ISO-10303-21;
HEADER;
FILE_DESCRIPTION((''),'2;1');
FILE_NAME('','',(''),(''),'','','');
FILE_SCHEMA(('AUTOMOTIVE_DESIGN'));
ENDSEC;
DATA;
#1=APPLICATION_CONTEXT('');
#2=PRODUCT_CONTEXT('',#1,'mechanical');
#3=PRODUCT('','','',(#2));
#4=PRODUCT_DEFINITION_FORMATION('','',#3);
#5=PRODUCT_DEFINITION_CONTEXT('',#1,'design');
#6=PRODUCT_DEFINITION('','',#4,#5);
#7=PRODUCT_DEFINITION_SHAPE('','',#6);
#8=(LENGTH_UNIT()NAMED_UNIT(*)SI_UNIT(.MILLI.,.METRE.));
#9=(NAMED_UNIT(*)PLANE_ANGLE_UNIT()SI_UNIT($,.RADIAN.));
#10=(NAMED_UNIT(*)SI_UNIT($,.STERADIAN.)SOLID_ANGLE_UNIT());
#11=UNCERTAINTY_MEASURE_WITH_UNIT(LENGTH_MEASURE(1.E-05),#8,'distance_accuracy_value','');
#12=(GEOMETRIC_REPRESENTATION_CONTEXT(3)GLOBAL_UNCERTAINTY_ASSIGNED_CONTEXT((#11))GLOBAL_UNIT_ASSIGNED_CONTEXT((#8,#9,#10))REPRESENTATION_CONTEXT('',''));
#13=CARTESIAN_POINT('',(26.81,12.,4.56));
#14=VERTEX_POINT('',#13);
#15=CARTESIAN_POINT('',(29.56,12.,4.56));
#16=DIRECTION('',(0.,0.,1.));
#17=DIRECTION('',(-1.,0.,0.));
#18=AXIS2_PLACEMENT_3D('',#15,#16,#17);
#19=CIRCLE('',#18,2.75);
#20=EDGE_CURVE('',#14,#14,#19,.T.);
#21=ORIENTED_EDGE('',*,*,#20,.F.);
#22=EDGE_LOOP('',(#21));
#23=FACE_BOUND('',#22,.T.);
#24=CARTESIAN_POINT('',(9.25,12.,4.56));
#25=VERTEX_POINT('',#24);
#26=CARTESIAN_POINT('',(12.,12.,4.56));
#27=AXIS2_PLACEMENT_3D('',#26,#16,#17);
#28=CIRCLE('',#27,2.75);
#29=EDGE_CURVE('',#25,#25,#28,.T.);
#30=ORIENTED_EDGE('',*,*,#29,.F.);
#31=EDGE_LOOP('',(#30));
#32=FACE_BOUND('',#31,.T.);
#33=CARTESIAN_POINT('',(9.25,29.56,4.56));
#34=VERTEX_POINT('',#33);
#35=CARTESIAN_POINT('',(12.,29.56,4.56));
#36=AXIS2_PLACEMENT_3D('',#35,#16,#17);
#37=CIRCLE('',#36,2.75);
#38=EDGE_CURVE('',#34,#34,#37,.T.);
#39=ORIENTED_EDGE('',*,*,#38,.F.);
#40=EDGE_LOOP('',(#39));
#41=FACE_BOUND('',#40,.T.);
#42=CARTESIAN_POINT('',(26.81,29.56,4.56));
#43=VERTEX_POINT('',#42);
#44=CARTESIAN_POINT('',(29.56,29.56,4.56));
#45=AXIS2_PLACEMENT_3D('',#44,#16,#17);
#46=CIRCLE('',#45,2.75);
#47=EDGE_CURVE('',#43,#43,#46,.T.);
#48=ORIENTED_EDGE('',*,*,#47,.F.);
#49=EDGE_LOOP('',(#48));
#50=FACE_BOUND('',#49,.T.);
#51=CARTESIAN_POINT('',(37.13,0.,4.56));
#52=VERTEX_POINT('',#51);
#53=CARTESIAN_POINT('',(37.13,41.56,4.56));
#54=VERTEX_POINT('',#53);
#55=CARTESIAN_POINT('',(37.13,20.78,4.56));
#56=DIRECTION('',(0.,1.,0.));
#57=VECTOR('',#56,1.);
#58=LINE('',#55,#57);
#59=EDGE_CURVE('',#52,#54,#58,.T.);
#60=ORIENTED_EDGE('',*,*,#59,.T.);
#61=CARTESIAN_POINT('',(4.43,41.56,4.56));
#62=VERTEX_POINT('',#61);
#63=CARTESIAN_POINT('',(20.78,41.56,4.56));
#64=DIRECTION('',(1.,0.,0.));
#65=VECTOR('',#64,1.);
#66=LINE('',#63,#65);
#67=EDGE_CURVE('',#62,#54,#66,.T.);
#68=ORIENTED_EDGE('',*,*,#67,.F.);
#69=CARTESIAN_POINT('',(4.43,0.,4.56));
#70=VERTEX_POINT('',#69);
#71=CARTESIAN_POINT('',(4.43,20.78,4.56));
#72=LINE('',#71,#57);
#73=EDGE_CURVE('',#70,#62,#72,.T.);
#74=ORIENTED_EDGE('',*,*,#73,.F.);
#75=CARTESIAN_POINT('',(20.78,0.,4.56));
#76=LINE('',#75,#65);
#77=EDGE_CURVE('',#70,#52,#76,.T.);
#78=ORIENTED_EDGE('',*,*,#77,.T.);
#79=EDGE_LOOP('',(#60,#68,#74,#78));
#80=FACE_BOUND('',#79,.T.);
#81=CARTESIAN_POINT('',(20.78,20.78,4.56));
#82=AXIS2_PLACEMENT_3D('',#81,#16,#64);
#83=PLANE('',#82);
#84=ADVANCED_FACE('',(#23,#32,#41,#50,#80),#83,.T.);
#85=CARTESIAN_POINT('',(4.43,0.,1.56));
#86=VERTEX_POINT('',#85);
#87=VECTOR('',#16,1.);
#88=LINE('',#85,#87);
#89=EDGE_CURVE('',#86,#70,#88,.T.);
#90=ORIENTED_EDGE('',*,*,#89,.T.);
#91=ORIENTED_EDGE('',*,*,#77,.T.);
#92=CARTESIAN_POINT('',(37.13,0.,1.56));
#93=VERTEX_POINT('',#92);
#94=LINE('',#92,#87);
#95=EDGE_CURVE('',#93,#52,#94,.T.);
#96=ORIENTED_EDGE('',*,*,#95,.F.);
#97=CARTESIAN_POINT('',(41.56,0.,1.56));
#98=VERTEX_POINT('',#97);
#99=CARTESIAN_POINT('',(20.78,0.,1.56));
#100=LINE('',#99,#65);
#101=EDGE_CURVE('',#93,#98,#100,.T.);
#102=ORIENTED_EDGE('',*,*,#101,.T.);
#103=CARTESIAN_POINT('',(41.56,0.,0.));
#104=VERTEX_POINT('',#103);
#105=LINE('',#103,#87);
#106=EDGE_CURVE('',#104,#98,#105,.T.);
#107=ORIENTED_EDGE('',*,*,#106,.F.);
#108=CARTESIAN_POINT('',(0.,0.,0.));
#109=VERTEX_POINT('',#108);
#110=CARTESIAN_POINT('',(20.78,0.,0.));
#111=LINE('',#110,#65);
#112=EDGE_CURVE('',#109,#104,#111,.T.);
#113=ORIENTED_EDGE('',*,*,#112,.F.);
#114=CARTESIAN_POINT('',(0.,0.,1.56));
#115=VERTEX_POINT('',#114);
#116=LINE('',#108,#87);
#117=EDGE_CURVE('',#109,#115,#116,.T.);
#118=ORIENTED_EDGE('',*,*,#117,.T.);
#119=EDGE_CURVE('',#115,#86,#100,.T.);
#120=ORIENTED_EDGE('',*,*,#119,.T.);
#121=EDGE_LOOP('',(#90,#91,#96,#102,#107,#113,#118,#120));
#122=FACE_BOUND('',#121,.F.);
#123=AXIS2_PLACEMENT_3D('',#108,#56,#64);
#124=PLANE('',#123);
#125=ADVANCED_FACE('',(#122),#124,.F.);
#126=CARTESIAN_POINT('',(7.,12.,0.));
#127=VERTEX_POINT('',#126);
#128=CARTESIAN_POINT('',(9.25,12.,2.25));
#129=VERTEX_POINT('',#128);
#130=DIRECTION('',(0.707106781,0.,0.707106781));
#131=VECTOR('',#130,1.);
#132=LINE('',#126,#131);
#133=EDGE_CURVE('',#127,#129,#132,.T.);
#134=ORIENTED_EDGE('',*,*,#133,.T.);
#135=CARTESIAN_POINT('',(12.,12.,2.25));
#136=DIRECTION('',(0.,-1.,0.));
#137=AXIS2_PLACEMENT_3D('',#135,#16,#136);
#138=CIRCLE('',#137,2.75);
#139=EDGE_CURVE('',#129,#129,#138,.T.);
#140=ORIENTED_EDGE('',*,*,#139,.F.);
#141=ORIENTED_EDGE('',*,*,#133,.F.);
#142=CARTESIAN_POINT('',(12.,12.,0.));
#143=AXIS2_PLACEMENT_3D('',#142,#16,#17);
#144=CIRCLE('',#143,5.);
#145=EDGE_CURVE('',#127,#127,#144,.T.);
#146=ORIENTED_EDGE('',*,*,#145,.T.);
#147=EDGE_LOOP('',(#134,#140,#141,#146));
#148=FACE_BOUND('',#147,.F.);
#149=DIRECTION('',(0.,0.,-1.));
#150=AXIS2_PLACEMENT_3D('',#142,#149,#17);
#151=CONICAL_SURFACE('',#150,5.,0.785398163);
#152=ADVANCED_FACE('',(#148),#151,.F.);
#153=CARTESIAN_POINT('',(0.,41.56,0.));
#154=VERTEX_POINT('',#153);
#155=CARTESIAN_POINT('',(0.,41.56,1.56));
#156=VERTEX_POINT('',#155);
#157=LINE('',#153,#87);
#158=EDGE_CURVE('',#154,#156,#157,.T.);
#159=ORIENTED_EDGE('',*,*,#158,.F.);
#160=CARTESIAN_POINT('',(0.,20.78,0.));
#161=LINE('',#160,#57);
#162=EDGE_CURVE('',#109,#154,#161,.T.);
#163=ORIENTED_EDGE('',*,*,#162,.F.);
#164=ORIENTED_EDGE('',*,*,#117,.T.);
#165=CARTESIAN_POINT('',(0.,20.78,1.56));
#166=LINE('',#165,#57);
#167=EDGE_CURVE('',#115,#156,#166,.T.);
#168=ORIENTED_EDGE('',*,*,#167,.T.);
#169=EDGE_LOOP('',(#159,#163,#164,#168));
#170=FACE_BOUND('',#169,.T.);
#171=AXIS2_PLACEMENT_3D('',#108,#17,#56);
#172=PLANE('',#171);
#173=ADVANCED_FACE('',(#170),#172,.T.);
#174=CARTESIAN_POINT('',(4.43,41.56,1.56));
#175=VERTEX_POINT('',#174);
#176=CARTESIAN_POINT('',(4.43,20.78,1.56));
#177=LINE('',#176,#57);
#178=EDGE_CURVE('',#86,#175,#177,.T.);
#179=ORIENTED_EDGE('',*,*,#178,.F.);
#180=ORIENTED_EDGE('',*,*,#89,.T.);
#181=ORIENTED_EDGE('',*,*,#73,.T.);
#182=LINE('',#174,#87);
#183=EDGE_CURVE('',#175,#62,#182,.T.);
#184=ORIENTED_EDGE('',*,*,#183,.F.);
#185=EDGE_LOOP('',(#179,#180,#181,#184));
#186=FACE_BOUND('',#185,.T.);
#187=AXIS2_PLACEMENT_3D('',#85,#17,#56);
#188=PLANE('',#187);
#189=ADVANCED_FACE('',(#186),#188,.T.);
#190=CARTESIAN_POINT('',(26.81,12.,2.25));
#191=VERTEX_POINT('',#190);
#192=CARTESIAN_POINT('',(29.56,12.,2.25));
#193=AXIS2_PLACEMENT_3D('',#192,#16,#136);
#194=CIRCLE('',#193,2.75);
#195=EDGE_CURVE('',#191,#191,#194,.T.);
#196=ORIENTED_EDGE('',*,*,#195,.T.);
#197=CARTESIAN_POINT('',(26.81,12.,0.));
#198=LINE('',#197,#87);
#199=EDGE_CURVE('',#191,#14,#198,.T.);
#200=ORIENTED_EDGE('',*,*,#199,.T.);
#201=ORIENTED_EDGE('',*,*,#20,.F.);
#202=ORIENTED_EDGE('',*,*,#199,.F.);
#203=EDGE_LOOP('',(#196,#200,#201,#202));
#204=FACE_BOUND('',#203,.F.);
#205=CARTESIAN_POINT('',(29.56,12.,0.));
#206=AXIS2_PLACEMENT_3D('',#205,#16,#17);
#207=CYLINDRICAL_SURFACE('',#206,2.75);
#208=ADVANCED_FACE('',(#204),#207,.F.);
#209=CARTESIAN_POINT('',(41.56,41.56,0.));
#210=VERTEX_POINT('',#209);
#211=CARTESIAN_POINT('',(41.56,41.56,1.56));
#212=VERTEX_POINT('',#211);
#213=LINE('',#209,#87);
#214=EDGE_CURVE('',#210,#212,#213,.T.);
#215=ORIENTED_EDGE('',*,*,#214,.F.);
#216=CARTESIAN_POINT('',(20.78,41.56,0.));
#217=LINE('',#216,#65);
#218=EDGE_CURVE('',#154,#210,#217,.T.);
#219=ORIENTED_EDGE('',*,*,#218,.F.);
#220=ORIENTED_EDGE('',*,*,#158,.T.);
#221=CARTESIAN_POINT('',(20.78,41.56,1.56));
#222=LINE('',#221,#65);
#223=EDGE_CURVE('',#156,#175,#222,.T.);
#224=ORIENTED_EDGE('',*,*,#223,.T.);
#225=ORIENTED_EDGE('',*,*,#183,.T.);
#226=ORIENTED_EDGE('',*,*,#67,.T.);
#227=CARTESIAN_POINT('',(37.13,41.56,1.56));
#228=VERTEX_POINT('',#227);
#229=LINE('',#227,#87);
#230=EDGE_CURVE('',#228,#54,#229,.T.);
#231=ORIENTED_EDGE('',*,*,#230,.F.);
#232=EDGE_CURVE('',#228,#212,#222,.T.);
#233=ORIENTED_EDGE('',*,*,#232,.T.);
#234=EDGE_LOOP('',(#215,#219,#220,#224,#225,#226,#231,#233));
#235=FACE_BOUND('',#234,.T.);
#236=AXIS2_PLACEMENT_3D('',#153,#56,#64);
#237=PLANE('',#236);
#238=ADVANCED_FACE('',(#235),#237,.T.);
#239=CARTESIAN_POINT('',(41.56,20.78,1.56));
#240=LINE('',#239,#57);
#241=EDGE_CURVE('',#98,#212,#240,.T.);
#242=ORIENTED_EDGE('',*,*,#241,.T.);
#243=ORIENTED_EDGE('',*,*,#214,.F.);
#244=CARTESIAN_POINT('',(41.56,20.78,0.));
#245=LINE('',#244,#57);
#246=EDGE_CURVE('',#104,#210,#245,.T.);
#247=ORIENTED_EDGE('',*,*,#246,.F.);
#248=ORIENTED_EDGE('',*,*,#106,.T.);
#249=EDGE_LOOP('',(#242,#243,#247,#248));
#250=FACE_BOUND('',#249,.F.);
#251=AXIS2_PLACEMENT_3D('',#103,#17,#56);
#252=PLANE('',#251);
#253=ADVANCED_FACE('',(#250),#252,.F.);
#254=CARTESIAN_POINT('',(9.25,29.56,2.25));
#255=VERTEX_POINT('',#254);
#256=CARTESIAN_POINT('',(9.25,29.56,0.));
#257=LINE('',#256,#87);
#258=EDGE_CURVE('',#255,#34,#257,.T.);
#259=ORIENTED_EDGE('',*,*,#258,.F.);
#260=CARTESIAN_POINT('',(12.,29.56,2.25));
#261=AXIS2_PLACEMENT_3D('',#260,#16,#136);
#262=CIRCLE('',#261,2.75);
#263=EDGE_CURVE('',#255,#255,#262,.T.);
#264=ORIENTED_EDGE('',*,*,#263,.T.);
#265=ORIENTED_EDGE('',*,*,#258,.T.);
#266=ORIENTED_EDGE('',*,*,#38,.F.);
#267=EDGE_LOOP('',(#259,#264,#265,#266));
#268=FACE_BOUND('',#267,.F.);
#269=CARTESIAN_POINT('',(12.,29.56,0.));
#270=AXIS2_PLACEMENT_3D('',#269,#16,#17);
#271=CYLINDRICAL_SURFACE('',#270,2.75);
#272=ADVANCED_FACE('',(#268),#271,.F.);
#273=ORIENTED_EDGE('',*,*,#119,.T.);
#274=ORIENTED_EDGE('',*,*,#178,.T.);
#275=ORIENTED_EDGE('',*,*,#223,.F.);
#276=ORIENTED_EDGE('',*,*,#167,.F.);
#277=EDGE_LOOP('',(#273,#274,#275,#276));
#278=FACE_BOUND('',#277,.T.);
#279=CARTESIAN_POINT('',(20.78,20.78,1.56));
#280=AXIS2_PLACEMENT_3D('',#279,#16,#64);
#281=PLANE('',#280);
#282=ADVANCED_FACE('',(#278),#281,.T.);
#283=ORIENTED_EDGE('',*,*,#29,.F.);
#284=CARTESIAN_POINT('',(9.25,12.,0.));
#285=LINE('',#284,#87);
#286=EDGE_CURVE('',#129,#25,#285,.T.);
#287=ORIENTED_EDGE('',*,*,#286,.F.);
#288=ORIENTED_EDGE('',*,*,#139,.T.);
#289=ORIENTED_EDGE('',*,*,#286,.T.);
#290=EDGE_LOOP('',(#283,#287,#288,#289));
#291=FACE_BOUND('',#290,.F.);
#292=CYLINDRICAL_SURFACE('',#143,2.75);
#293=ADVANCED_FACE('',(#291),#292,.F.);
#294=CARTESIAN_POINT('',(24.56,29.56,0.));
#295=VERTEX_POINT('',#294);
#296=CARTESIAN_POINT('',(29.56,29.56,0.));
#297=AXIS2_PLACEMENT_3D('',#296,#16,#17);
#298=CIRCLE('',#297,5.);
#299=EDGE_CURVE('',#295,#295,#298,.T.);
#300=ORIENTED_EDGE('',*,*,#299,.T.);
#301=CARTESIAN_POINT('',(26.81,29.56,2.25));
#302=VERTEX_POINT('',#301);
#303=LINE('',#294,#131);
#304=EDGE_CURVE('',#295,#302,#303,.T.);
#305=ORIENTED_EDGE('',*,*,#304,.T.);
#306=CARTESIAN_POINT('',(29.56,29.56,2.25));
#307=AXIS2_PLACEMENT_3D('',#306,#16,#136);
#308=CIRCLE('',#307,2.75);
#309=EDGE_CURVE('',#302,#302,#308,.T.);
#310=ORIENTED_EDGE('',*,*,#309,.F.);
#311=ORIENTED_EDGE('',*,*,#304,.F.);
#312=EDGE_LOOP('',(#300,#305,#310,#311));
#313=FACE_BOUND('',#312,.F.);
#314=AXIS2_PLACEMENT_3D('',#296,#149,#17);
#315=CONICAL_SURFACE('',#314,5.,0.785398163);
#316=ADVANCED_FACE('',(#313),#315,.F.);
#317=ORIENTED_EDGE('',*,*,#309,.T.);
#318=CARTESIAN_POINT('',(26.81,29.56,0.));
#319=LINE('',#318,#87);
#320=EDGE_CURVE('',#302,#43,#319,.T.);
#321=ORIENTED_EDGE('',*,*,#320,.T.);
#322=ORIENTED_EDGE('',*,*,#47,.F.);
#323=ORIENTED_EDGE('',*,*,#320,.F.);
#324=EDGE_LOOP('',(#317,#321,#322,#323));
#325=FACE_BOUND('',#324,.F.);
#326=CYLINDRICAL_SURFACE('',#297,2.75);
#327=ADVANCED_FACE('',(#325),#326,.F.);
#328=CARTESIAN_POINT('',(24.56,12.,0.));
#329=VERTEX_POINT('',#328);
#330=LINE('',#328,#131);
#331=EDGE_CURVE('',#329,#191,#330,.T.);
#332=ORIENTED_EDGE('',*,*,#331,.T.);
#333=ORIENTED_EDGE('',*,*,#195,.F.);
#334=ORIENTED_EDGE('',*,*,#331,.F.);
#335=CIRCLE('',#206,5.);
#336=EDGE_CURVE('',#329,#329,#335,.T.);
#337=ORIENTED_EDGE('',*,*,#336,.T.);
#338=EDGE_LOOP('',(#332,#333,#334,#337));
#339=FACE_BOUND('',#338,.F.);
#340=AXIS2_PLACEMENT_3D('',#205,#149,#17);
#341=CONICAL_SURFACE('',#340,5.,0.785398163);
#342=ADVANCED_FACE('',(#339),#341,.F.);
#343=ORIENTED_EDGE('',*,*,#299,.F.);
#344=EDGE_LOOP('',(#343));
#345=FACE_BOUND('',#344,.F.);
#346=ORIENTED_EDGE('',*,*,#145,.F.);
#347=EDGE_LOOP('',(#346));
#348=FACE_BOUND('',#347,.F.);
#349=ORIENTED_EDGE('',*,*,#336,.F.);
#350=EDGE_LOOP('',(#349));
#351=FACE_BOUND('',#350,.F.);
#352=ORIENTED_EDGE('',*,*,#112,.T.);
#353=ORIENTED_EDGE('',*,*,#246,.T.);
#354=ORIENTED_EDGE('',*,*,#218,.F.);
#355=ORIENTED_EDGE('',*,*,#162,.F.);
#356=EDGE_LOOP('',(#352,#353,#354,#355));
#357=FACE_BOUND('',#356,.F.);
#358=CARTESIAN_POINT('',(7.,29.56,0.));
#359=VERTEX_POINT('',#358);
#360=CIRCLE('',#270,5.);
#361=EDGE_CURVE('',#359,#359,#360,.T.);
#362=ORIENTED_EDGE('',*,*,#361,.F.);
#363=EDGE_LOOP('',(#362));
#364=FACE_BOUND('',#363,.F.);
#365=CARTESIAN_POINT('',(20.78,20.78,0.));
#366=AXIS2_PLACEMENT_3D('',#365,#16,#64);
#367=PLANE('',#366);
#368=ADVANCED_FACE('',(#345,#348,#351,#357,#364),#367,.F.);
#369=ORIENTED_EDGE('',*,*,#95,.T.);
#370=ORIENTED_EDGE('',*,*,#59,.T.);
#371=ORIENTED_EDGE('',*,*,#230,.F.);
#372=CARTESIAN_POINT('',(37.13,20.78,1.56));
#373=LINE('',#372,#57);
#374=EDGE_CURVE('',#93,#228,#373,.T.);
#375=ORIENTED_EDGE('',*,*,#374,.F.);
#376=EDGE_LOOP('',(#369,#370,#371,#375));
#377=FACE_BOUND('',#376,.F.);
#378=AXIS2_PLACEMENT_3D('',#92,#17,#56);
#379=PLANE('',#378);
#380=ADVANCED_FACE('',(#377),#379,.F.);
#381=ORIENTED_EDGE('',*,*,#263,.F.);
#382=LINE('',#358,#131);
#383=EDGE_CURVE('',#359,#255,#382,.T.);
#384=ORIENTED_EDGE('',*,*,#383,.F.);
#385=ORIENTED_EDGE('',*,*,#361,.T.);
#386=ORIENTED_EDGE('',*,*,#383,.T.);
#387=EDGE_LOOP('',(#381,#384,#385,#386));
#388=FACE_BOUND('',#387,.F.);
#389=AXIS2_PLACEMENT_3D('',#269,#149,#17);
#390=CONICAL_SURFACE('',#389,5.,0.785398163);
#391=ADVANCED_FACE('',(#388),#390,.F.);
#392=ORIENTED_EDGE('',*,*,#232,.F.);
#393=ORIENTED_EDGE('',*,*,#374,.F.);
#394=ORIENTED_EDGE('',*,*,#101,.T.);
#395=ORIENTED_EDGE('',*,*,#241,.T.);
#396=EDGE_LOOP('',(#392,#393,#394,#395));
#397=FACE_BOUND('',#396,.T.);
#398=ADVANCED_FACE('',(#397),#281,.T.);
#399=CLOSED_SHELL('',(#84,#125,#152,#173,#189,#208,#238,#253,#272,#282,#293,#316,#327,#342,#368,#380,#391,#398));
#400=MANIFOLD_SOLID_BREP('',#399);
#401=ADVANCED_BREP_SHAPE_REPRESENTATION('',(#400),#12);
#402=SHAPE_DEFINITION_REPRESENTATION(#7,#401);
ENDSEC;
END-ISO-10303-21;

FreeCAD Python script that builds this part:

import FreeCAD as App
import Part
import Sketcher

doc = App.newDocument("Part")
body = doc.addObject("PartDesign::Body", "Body")

sketch1 = body.newObject("Sketcher::SketchObject", "Sketch")
sketch1.AttachmentSupport = (doc.getObject("XY_Plane"), [""])
sketch1.MapMode = "FlatFace"
sketch1.addGeometry([
    Part.LineSegment(App.Vector(0, 42, 0), App.Vector(0, 0, 0)),
    Part.LineSegment(App.Vector(0, 0, 0), App.Vector(42, 0, 0)),
    Part.LineSegment(App.Vector(42, 0, 0), App.Vector(42, 42, 0)),
    Part.LineSegment(App.Vector(42, 42, 0), App.Vector(0, 42, 0)),
], False)
sketch1.addConstraint([
    Sketcher.Constraint("Coincident", 0, 2, 1, 1),
    Sketcher.Constraint("Coincident", 1, 2, 2, 1),
    Sketcher.Constraint("Coincident", 2, 2, 3, 1),
    Sketcher.Constraint("Coincident", 3, 2, 0, 1),
    Sketcher.Constraint("Vertical", 0),
    Sketcher.Constraint("Horizontal", 1),
    Sketcher.Constraint("Vertical", 2),
    Sketcher.Constraint("Horizontal", 3),
    Sketcher.Constraint("Coincident", 0, 2, -1, 1),
    Sketcher.Constraint("Equal", 3, 0),
    Sketcher.Constraint("DistanceX", 1, 1, 1, 2, 41.56),
])
pad1 = body.newObject("PartDesign::Pad", "Pad")
pad1.Profile = sketch1
pad1.Length = 1.56

sketch2 = body.newObject("Sketcher::SketchObject", "Sketch001")
sketch2.AttachmentSupport = (doc.getObject("XY_Plane"), [""])
sketch2.MapMode = "FlatFace"
sketch2.AttachmentOffset = App.Placement(App.Vector(0, 0, 1.56), App.Rotation())
sketch2.addGeometry([
    Part.LineSegment(App.Vector(4, 42, 0), App.Vector(4, 0, 0)),
    Part.LineSegment(App.Vector(4, 0, 0), App.Vector(37, 0, 0)),
    Part.LineSegment(App.Vector(37, 0, 0), App.Vector(37, 42, 0)),
    Part.LineSegment(App.Vector(37, 42, 0), App.Vector(4, 42, 0)),
], False)
sketch2.addConstraint([
    Sketcher.Constraint("Coincident", 0, 2, 1, 1),
    Sketcher.Constraint("Coincident", 1, 2, 2, 1),
    Sketcher.Constraint("Coincident", 2, 2, 3, 1),
    Sketcher.Constraint("Coincident", 3, 2, 0, 1),
    Sketcher.Constraint("Vertical", 0),
    Sketcher.Constraint("Horizontal", 1),
    Sketcher.Constraint("Vertical", 2),
    Sketcher.Constraint("Horizontal", 3),
    Sketcher.Constraint("PointOnObject", 0, 2, -1),
    Sketcher.Constraint("DistanceX", 1, 1, 1, 2, 32.7),
    Sketcher.Constraint("DistanceY", 0, 2, 0, 1, 41.56),
    Sketcher.Constraint("DistanceX", -1, 1, 0, 2, 4.43),
])
pad2 = body.newObject("PartDesign::Pad", "Pad001")
pad2.Profile = sketch2
pad2.Length = 3

sketch3 = body.newObject("Sketcher::SketchObject", "Sketch002")
sketch3.AttachmentSupport = (doc.getObject("XY_Plane"), [""])
sketch3.MapMode = "FlatFace"
sketch3.addGeometry([
    Part.Circle(App.Vector(12, 12, 0), App.Vector(0, 0, 1), 2.8),
    Part.Circle(App.Vector(29.6, 12, 0), App.Vector(0, 0, 1), 2.8),
    Part.Circle(App.Vector(12, 29.6, 0), App.Vector(0, 0, 1), 2.8),
    Part.Circle(App.Vector(29.6, 29.6, 0), App.Vector(0, 0, 1), 2.8),
], False)
sketch3.addConstraint([
    Sketcher.Constraint("Equal", 0, 1),
    Sketcher.Constraint("Equal", 1, 2),
    Sketcher.Constraint("Equal", 2, 3),
    Sketcher.Constraint("Horizontal", 0, 3, 1, 3),
    Sketcher.Constraint("Horizontal", 2, 3, 3, 3),
    Sketcher.Constraint("Vertical", 0, 3, 2, 3),
    Sketcher.Constraint("Vertical", 1, 3, 3, 3),
    Sketcher.Constraint("Diameter", 0, 5.5),
    Sketcher.Constraint("DistanceX", -1, 1, 0, 3, 12.0),
    Sketcher.Constraint("DistanceY", -1, 1, 0, 3, 12.0),
    Sketcher.Constraint("DistanceX", -1, 1, 1, 3, 29.56),
    Sketcher.Constraint("DistanceY", -1, 1, 2, 3, 29.56),
])
doc.recompute()
hole = body.newObject("PartDesign::Hole", "Hole")
hole.Profile = sketch3
hole.ThreadType = "None"
hole.Diameter = 5.5
hole.DepthType = "Dimension"
hole.Depth = 8
hole.DrillPoint = "Flat"
hole.HoleCutType = "Countersink"
hole.HoleCutDiameter = 10
hole.HoleCutCountersinkAngle = 90
hole.Reversed = True

doc.recompute()
